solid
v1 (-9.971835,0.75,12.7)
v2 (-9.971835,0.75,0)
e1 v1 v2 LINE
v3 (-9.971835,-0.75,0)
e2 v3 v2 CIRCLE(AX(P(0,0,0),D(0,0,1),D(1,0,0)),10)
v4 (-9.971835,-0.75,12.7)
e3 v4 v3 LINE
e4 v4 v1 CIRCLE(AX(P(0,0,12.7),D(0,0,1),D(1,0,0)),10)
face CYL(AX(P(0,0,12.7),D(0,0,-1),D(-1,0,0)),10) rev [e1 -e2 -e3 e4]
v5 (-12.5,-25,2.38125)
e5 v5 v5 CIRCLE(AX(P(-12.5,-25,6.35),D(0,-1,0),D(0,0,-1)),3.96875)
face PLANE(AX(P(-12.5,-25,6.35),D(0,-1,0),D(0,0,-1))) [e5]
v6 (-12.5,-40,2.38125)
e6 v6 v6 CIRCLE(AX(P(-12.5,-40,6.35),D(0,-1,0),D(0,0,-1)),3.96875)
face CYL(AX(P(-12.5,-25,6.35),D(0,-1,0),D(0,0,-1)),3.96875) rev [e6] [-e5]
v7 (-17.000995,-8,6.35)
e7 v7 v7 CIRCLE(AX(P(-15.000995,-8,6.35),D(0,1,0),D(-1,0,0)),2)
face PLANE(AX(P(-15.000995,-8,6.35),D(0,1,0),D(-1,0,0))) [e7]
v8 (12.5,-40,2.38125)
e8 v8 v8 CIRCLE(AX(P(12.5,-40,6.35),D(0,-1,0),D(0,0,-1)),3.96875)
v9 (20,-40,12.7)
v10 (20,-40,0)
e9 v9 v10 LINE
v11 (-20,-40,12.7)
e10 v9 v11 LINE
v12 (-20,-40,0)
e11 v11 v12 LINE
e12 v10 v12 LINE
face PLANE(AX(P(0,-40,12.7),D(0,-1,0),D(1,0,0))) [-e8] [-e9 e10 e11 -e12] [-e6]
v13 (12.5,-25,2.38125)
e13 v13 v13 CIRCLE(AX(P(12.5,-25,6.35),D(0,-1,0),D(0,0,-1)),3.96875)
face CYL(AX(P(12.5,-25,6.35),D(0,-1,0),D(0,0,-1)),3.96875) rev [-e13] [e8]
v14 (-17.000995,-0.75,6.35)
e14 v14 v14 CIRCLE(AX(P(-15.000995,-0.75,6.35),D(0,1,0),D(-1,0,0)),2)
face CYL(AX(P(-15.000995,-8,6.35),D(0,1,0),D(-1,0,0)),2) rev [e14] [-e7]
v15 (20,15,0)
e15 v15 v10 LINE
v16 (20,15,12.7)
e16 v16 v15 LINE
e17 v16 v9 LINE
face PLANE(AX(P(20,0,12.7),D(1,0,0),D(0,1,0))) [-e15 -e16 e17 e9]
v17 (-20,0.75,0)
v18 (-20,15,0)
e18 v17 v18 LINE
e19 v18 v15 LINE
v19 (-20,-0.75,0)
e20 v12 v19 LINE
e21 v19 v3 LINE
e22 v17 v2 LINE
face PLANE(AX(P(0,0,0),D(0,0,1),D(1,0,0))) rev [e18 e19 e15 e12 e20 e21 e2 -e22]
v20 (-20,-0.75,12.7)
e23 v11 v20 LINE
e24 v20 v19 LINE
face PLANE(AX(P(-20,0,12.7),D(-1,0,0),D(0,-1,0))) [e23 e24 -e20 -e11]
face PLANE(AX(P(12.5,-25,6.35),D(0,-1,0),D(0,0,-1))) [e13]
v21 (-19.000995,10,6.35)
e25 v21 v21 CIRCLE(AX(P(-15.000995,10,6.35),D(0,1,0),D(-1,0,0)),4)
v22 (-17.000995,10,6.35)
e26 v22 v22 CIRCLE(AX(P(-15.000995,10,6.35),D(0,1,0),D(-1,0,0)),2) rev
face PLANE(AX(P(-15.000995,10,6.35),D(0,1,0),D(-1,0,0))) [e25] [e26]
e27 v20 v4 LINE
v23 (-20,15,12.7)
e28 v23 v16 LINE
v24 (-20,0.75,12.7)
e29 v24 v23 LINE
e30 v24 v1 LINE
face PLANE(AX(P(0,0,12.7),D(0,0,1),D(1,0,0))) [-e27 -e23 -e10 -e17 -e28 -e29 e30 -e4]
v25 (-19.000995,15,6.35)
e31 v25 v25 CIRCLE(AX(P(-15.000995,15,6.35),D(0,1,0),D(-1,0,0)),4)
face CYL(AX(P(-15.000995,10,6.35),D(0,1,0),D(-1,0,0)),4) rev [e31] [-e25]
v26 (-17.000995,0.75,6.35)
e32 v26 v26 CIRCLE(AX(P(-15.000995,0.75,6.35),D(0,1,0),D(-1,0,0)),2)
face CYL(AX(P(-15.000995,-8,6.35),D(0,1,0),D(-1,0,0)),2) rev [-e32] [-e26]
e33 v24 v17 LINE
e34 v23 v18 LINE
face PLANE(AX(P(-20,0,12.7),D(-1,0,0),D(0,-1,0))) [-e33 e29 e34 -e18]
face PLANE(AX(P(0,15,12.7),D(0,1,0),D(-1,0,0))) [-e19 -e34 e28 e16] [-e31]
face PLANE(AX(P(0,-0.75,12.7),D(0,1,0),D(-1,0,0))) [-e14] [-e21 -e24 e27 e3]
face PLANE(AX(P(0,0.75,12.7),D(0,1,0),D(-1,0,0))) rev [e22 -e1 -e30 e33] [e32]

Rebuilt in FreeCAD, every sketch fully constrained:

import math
import FreeCAD as App
import Part
import Sketcher
from FreeCAD import Vector
Q = App.Units.Quantity

doc = App.newDocument("Part")
body = doc.addObject("PartDesign::Body", "Body")

sketch1 = doc.addObject("Sketcher::SketchObject", "Sketch")
body.addObject(sketch1)
sketch1.AttachmentSupport = (doc.XY_Plane, [""])
sketch1.MapMode = "FlatFace"
sketch1.addGeometry([
    Part.ArcOfCircle(Part.Circle(Vector(0, 0, 0), Vector(0, 0, 1), 10), math.radians(-175.698778), math.radians(175.698778)),
    Part.LineSegment(Vector(-9.971835, -0.75, 0), Vector(-20, -0.75, 0)),
    Part.LineSegment(Vector(-20, -0.75, 0), Vector(-20, -40, 0)),
    Part.LineSegment(Vector(-20, -40, 0), Vector(20, -40, 0)),
    Part.LineSegment(Vector(20, -40, 0), Vector(20, 15, 0)),
    Part.LineSegment(Vector(20, 15, 0), Vector(-20, 15, 0)),
    Part.LineSegment(Vector(-20, 15, 0), Vector(-20, 0.75, 0)),
    Part.LineSegment(Vector(-20, 0.75, 0), Vector(-9.971835, 0.75, 0)),
], False)
sketch1.addConstraint([
    Sketcher.Constraint("Coincident", 0, 1, 1, 1),
    Sketcher.Constraint("Coincident", 1, 2, 2, 1),
    Sketcher.Constraint("Coincident", 2, 2, 3, 1),
    Sketcher.Constraint("Coincident", 3, 2, 4, 1),
    Sketcher.Constraint("Coincident", 4, 2, 5, 1),
    Sketcher.Constraint("Coincident", 5, 2, 6, 1),
    Sketcher.Constraint("Coincident", 6, 2, 7, 1),
    Sketcher.Constraint("Coincident", 7, 2, 0, 2),
    Sketcher.Constraint("Horizontal", 1),
    Sketcher.Constraint("Vertical", 2),
    Sketcher.Constraint("Horizontal", 3),
    Sketcher.Constraint("Vertical", 4),
    Sketcher.Constraint("Horizontal", 5),
    Sketcher.Constraint("Vertical", 6),
    Sketcher.Constraint("Horizontal", 7),
    Sketcher.Constraint("Coincident", 0, 3, -1, 1),
    Sketcher.Constraint("Symmetric", 1, 2, 6, 2, -1),
    Sketcher.Constraint("Radius", 0, Q("10 mm")),
    Sketcher.Constraint("DistanceX", 3, 1, 3, 2, Q("40 mm")),
    Sketcher.Constraint("DistanceY", 4, 1, 4, 2, Q("55 mm")),
    Sketcher.Constraint("DistanceX", 1, 2, -1, 1, Q("20 mm")),
    Sketcher.Constraint("DistanceY", 2, 2, -1, 1, Q("40 mm")),
    Sketcher.Constraint("DistanceY", 2, 2, 2, 1, Q("39.25 mm")),
])
pad1 = doc.addObject("PartDesign::Pad", "Pad")
body.addObject(pad1)
pad1.Profile = sketch1
pad1.Length = 12.7

sketch2 = doc.addObject("Sketcher::SketchObject", "Sketch001")
body.addObject(sketch2)
sketch2.AttachmentSupport = (doc.XZ_Plane, [""])
sketch2.MapMode = "FlatFace"
sketch2.AttachmentOffset = App.Placement(Vector(0, 0, -15), App.Rotation())
sketch2.addGeometry(Part.Circle(Vector(-15.000995, 6.35, 0), Vector(0, 0, 1), 2), False)
sketch2.addConstraint([
    Sketcher.Constraint("Diameter", 0, Q("4 mm")),
    Sketcher.Constraint("DistanceY", -1, 1, 0, 3, Q("6.35 mm")),
    Sketcher.Constraint("DistanceX", 0, 3, -1, 1, Q("15.000995 mm")),
])
pocket1 = doc.addObject("PartDesign::Pocket", "Pocket")
body.addObject(pocket1)
pocket1.Profile = sketch2
pocket1.Length = 23
pocket1.Reversed = True

sketch3 = doc.addObject("Sketcher::SketchObject", "Sketch002")
body.addObject(sketch3)
sketch3.AttachmentSupport = (doc.XZ_Plane, [""])
sketch3.MapMode = "FlatFace"
sketch3.AttachmentOffset = App.Placement(Vector(0, 0, -15), App.Rotation())
sketch3.addGeometry(Part.Circle(Vector(-15.000995, 6.35, 0), Vector(0, 0, 1), 4), False)
sketch3.addConstraint([
    Sketcher.Constraint("Diameter", 0, Q("8 mm")),
    Sketcher.Constraint("DistanceY", -1, 1, 0, 3, Q("6.35 mm")),
    Sketcher.Constraint("DistanceX", 0, 3, -1, 1, Q("15.000995 mm")),
])
pocket2 = doc.addObject("PartDesign::Pocket", "Pocket001")
body.addObject(pocket2)
pocket2.Profile = sketch3
pocket2.Length = 5
pocket2.Reversed = True

sketch4 = doc.addObject("Sketcher::SketchObject", "Sketch003")
body.addObject(sketch4)
sketch4.AttachmentSupport = (doc.XZ_Plane, [""])
sketch4.MapMode = "FlatFace"
sketch4.AttachmentOffset = App.Placement(Vector(0, 0, 40), App.Rotation())
sketch4.addGeometry([
    Part.Circle(Vector(-12.5, 6.35, 0), Vector(0, 0, 1), 3.96875),
    Part.Circle(Vector(12.5, 6.35, 0), Vector(0, 0, 1), 3.96875),
], False)
sketch4.addConstraint([
    Sketcher.Constraint("Equal", 0, 1),
    Sketcher.Constraint("Symmetric", 0, 3, 1, 3, -2),
    Sketcher.Constraint("DistanceX", 0, 3, 1, 3, Q("25 mm")),
    Sketcher.Constraint("Diameter", 0, Q("7.9375 mm")),
    Sketcher.Constraint("DistanceY", -1, 1, 0, 3, Q("6.35 mm")),
])
pocket3 = doc.addObject("PartDesign::Pocket", "Pocket002")
body.addObject(pocket3)
pocket3.Profile = sketch4
pocket3.Length = 15

doc.recompute()
